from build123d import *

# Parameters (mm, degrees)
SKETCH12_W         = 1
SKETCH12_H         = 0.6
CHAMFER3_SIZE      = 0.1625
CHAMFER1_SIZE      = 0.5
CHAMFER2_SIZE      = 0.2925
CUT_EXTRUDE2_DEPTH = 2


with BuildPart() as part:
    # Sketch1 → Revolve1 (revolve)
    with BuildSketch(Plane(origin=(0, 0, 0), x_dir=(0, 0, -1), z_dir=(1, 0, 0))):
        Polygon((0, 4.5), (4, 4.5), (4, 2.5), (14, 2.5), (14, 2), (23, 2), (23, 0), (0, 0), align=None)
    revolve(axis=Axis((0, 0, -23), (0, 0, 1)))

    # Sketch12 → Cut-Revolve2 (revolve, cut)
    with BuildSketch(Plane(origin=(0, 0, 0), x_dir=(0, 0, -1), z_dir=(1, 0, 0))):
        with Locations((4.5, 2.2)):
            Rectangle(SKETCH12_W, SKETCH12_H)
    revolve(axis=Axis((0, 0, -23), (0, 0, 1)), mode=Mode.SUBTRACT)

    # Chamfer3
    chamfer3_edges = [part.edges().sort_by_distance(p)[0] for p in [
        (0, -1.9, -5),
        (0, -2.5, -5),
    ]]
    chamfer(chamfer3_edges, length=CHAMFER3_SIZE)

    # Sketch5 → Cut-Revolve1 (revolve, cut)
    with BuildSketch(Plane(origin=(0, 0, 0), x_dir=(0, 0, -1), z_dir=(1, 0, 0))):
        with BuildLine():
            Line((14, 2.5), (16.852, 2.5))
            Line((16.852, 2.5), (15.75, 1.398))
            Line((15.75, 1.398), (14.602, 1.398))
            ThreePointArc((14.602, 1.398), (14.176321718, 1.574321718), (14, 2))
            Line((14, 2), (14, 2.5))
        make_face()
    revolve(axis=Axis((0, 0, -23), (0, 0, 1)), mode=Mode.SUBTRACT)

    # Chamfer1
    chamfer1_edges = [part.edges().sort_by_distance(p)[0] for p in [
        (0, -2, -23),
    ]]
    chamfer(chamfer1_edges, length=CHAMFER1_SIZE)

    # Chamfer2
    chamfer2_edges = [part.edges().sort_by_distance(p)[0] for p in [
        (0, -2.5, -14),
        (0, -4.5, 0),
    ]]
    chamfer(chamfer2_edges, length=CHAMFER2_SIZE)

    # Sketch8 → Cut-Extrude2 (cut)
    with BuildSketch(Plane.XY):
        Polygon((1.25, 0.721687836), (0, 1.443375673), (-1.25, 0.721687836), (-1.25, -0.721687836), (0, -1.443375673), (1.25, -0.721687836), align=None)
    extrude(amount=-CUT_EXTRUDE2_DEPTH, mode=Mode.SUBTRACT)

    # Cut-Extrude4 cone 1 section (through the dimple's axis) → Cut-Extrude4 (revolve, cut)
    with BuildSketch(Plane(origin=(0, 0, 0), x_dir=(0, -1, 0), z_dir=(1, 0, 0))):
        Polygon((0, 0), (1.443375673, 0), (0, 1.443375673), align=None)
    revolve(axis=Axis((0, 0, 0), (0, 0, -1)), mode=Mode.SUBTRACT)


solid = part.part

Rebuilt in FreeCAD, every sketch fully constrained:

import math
import FreeCAD as App
import Part
import Sketcher
from FreeCAD import Vector
Q = App.Units.Quantity


def edges_at(feature, points):
    """Names of the edges that pass closest to the given points."""
    edges = feature.Shape.Edges
    near = lambda p: min(range(len(edges)), key=lambda i: edges[i].distToShape(Part.Vertex(*p))[0])
    return sorted({f"Edge{near(p) + 1}" for p in points})

doc = App.newDocument("Part")
body = doc.addObject("PartDesign::Body", "Body")

# Sketch on YZ plane
sketch1 = body.newObject("Sketcher::SketchObject", "Sketch")
sketch1.AttachmentSupport = (doc.getObject("YZ_Plane"), [""])
sketch1.MapMode = "FlatFace"
sketch1.addGeometry(Part.LineSegment(Vector(4.5, -4, 0), Vector(4.5, 0, 0)), False)
sketch1.addGeometry(Part.LineSegment(Vector(4.5, 0, 0), Vector(0, 0, 0)), False)
sketch1.addGeometry(Part.LineSegment(Vector(0, 0, 0), Vector(0, -23, 0)), False)
sketch1.addGeometry(Part.LineSegment(Vector(0, -23, 0), Vector(2, -23, 0)), False)
sketch1.addGeometry(Part.LineSegment(Vector(2, -23, 0), Vector(2, -14, 0)), False)
sketch1.addGeometry(Part.LineSegment(Vector(2, -14, 0), Vector(2.5, -14, 0)), False)
sketch1.addGeometry(Part.LineSegment(Vector(2.5, -14, 0), Vector(2.5, -4, 0)), False)
sketch1.addGeometry(Part.LineSegment(Vector(2.5, -4, 0), Vector(4.5, -4, 0)), False)
sketch1.addConstraint(Sketcher.Constraint("Coincident", 0, 2, 1, 1))
sketch1.addConstraint(Sketcher.Constraint("Coincident", 1, 2, 2, 1))
sketch1.addConstraint(Sketcher.Constraint("Coincident", 2, 2, 3, 1))
sketch1.addConstraint(Sketcher.Constraint("Coincident", 3, 2, 4, 1))
sketch1.addConstraint(Sketcher.Constraint("Coincident", 4, 2, 5, 1))
sketch1.addConstraint(Sketcher.Constraint("Coincident", 5, 2, 6, 1))
sketch1.addConstraint(Sketcher.Constraint("Coincident", 6, 2, 7, 1))
sketch1.addConstraint(Sketcher.Constraint("Coincident", 7, 2, 0, 1))
sketch1.addConstraint(Sketcher.Constraint("Vertical", 0))
sketch1.addConstraint(Sketcher.Constraint("Horizontal", 1))
sketch1.addConstraint(Sketcher.Constraint("Vertical", 2))
sketch1.addConstraint(Sketcher.Constraint("Horizontal", 3))
sketch1.addConstraint(Sketcher.Constraint("Vertical", 4))
sketch1.addConstraint(Sketcher.Constraint("Horizontal", 5))
sketch1.addConstraint(Sketcher.Constraint("Vertical", 6))
sketch1.addConstraint(Sketcher.Constraint("Horizontal", 7))
sketch1.addConstraint(Sketcher.Constraint("Coincident", 1, 2, -1, 1))
sketch1.addConstraint(Sketcher.Constraint("Equal", 3, 7))
sketch1.addConstraint(Sketcher.Constraint("DistanceX", 3, 1, 3, 2, 2.0))
sketch1.addConstraint(Sketcher.Constraint("DistanceY", 0, 1, 0, 2, 4.0))
sketch1.addConstraint(Sketcher.Constraint("DistanceY", 2, 2, 2, 1, 23.0))
sketch1.addConstraint(Sketcher.Constraint("DistanceY", 4, 1, 4, 2, 9.0))
sketch1.addConstraint(Sketcher.Constraint("DistanceX", 1, 2, 1, 1, 4.5))
revolution = body.newObject("PartDesign::Revolution", "Revolution")
revolution.Profile = sketch1
revolution.ReferenceAxis = (sketch1, ["V_Axis"])
revolution.Angle = 360

# Sketch on YZ plane
sketch2 = body.newObject("Sketcher::SketchObject", "Sketch001")
sketch2.AttachmentSupport = (doc.getObject("YZ_Plane"), [""])
sketch2.MapMode = "FlatFace"
sketch2.addGeometry(Part.LineSegment(Vector(2.5, -4, 0), Vector(1.9, -4, 0)), False)
sketch2.addGeometry(Part.LineSegment(Vector(1.9, -4, 0), Vector(1.9, -5, 0)), False)
sketch2.addGeometry(Part.LineSegment(Vector(1.9, -5, 0), Vector(2.5, -5, 0)), False)
sketch2.addGeometry(Part.LineSegment(Vector(2.5, -5, 0), Vector(2.5, -4, 0)), False)
sketch2.addConstraint(Sketcher.Constraint("Coincident", 0, 2, 1, 1))
sketch2.addConstraint(Sketcher.Constraint("Coincident", 1, 2, 2, 1))
sketch2.addConstraint(Sketcher.Constraint("Coincident", 2, 2, 3, 1))
sketch2.addConstraint(Sketcher.Constraint("Coincident", 3, 2, 0, 1))
sketch2.addConstraint(Sketcher.Constraint("Horizontal", 0))
sketch2.addConstraint(Sketcher.Constraint("Vertical", 1))
sketch2.addConstraint(Sketcher.Constraint("Horizontal", 2))
sketch2.addConstraint(Sketcher.Constraint("Vertical", 3))
sketch2.addConstraint(Sketcher.Constraint("DistanceY", 1, 2, 1, 1, 1.0))
sketch2.addConstraint(Sketcher.Constraint("DistanceX", 0, 2, 0, 1, 0.6))
sketch2.addConstraint(Sketcher.Constraint("DistanceY", 0, 2, -1, 1, 4.0))
sketch2.addConstraint(Sketcher.Constraint("DistanceX", -1, 1, 0, 2, 1.9))
groove = body.newObject("PartDesign::Groove", "Groove")
groove.Profile = sketch2
groove.ReferenceAxis = (sketch2, ["V_Axis"])
groove.Angle = 360
doc.recompute()

chamfer = body.newObject("PartDesign::Chamfer", "Chamfer")
chamfer.Base = (groove, edges_at(groove, [(0, -1.9, -5), (0, -2.5, -5)]))
chamfer.Size = 0.1625

# Sketch on YZ plane
sketch3 = body.newObject("Sketcher::SketchObject", "Sketch002")
sketch3.AttachmentSupport = (doc.getObject("YZ_Plane"), [""])
sketch3.MapMode = "FlatFace"
sketch3.addGeometry(Part.LineSegment(Vector(2.5, -16.9, 0), Vector(2.5, -14, 0)), False)
sketch3.addGeometry(Part.LineSegment(Vector(2.5, -14, 0), Vector(2, -14, 0)), False)
sketch3.addGeometry(Part.ArcOfCircle(Part.Circle(Vector(2, -14.6, 0), Vector(0, 0, 1), 0.6), math.radians(90), math.radians(180)), False)
sketch3.addGeometry(Part.LineSegment(Vector(1.4, -14.6, 0), Vector(1.4, -15.8, 0)), False)
sketch3.addGeometry(Part.LineSegment(Vector(1.4, -15.8, 0), Vector(2.5, -16.9, 0)), False)
sketch3.addConstraint(Sketcher.Constraint("Coincident", 0, 2, 1, 1))
sketch3.addConstraint(Sketcher.Constraint("Tangent", 1, 2, 2, 1))
sketch3.addConstraint(Sketcher.Constraint("Tangent", 2, 2, 3, 1))
sketch3.addConstraint(Sketcher.Constraint("Coincident", 3, 2, 4, 1))
sketch3.addConstraint(Sketcher.Constraint("Coincident", 4, 2, 0, 1))
sketch3.addConstraint(Sketcher.Constraint("Vertical", 0))
sketch3.addConstraint(Sketcher.Constraint("Horizontal", 1))
sketch3.addConstraint(Sketcher.Constraint("Vertical", 3))
sketch3.addConstraint(Sketcher.Constraint("Angle", 4, Q("-45 deg")))
sketch3.addConstraint(Sketcher.Constraint("DistanceX", 1, 2, 1, 1, 0.5))
sketch3.addConstraint(Sketcher.Constraint("DistanceX", -1, 1, 2, 3, 2.0))
sketch3.addConstraint(Sketcher.Constraint("DistanceY", 0, 2, -1, 1, 14.0))
sketch3.addConstraint(Sketcher.Constraint("Radius", 2, 0.602))
sketch3.addConstraint(Sketcher.Constraint("DistanceY", 0, 1, 0, 2, 2.852))
groove2 = body.newObject("PartDesign::Groove", "Groove001")
groove2.Profile = sketch3
groove2.ReferenceAxis = (sketch3, ["V_Axis"])
groove2.Angle = 360
doc.recompute()

chamfer2 = body.newObject("PartDesign::Chamfer", "Chamfer001")
chamfer2.Base = (groove2, edges_at(groove2, [(0, -2, -23)]))
chamfer2.Size = 0.5
doc.recompute()

chamfer3 = body.newObject("PartDesign::Chamfer", "Chamfer002")
chamfer3.Base = (chamfer2, edges_at(chamfer2, [(0, -2.5, -14), (0, -4.5, 0)]))
chamfer3.Size = 0.2925

# Sketch on XY plane
sketch4 = body.newObject("Sketcher::SketchObject", "Sketch003")
sketch4.AttachmentSupport = (doc.getObject("XY_Plane"), [""])
sketch4.MapMode = "FlatFace"
sketch4.addGeometry(Part.LineSegment(Vector(1.2, 0.7, 0), Vector(0, 1.4, 0)), False)
sketch4.addGeometry(Part.LineSegment(Vector(0, 1.4, 0), Vector(-1.2, 0.7, 0)), False)
sketch4.addGeometry(Part.LineSegment(Vector(-1.2, 0.7, 0), Vector(-1.2, -0.7, 0)), False)
sketch4.addGeometry(Part.LineSegment(Vector(-1.2, -0.7, 0), Vector(0, -1.4, 0)), False)
sketch4.addGeometry(Part.LineSegment(Vector(0, -1.4, 0), Vector(1.2, -0.7, 0)), False)
sketch4.addGeometry(Part.LineSegment(Vector(1.2, -0.7, 0), Vector(1.2, 0.7, 0)), False)
sketch4.addConstraint(Sketcher.Constraint("Coincident", 0, 2, 1, 1))
sketch4.addConstraint(Sketcher.Constraint("Coincident", 1, 2, 2, 1))
sketch4.addConstraint(Sketcher.Constraint("Coincident", 2, 2, 3, 1))
sketch4.addConstraint(Sketcher.Constraint("Coincident", 3, 2, 4, 1))
sketch4.addConstraint(Sketcher.Constraint("Coincident", 4, 2, 5, 1))
sketch4.addConstraint(Sketcher.Constraint("Coincident", 5, 2, 0, 1))
sketch4.addConstraint(Sketcher.Constraint("Vertical", 2))
sketch4.addConstraint(Sketcher.Constraint("Vertical", 5))
sketch4.addConstraint(Sketcher.Constraint("Symmetric", 0, 2, 3, 2, -1, 1))
sketch4.addConstraint(Sketcher.Constraint("Symmetric", 1, 2, 4, 2, -1, 1))
sketch4.addConstraint(Sketcher.Constraint("PointOnObject", 0, 2, -2))
sketch4.addConstraint(Sketcher.Constraint("Parallel", 0, 3))
sketch4.addConstraint(Sketcher.Constraint("Horizontal", 2, 2, 4, 2))
sketch4.addConstraint(Sketcher.Constraint("Angle", 0, Q("150 deg")))
sketch4.addConstraint(Sketcher.Constraint("DistanceX", 2, 2, 4, 2, 2.5))
sketch4.addConstraint(Sketcher.Constraint("DistanceY", 2, 2, 2, 1, 1.443376))
pocket1 = body.newObject("PartDesign::Pocket", "Pocket")
pocket1.Profile = sketch4
pocket1.Length = 2

# Sketch on YZ plane
sketch5 = body.newObject("Sketcher::SketchObject", "Sketch004")
sketch5.AttachmentSupport = (doc.getObject("YZ_Plane"), [""])
sketch5.MapMode = "FlatFace"
sketch5.addGeometry(Part.LineSegment(Vector(0, 0, 0), Vector(-1.4, 0, 0)), False)
sketch5.addGeometry(Part.LineSegment(Vector(-1.4, 0, 0), Vector(0, -1.4, 0)), False)
sketch5.addGeometry(Part.LineSegment(Vector(0, -1.4, 0), Vector(0, 0, 0)), False)
sketch5.addConstraint(Sketcher.Constraint("Coincident", 0, 2, 1, 1))
sketch5.addConstraint(Sketcher.Constraint("Coincident", 1, 2, 2, 1))
sketch5.addConstraint(Sketcher.Constraint("Coincident", 2, 2, 0, 1))
sketch5.addConstraint(Sketcher.Constraint("Horizontal", 0))
sketch5.addConstraint(Sketcher.Constraint("Vertical", 2))
sketch5.addConstraint(Sketcher.Constraint("Coincident", 2, 2, -1, 1))
sketch5.addConstraint(Sketcher.Constraint("Equal", 0, 2))
sketch5.addConstraint(Sketcher.Constraint("Distance", 1, 2.041241))
groove3 = body.newObject("PartDesign::Groove", "Groove002")
groove3.Profile = sketch5
groove3.ReferenceAxis = (sketch5, ["V_Axis"])
groove3.Angle = 360

doc.recompute()
